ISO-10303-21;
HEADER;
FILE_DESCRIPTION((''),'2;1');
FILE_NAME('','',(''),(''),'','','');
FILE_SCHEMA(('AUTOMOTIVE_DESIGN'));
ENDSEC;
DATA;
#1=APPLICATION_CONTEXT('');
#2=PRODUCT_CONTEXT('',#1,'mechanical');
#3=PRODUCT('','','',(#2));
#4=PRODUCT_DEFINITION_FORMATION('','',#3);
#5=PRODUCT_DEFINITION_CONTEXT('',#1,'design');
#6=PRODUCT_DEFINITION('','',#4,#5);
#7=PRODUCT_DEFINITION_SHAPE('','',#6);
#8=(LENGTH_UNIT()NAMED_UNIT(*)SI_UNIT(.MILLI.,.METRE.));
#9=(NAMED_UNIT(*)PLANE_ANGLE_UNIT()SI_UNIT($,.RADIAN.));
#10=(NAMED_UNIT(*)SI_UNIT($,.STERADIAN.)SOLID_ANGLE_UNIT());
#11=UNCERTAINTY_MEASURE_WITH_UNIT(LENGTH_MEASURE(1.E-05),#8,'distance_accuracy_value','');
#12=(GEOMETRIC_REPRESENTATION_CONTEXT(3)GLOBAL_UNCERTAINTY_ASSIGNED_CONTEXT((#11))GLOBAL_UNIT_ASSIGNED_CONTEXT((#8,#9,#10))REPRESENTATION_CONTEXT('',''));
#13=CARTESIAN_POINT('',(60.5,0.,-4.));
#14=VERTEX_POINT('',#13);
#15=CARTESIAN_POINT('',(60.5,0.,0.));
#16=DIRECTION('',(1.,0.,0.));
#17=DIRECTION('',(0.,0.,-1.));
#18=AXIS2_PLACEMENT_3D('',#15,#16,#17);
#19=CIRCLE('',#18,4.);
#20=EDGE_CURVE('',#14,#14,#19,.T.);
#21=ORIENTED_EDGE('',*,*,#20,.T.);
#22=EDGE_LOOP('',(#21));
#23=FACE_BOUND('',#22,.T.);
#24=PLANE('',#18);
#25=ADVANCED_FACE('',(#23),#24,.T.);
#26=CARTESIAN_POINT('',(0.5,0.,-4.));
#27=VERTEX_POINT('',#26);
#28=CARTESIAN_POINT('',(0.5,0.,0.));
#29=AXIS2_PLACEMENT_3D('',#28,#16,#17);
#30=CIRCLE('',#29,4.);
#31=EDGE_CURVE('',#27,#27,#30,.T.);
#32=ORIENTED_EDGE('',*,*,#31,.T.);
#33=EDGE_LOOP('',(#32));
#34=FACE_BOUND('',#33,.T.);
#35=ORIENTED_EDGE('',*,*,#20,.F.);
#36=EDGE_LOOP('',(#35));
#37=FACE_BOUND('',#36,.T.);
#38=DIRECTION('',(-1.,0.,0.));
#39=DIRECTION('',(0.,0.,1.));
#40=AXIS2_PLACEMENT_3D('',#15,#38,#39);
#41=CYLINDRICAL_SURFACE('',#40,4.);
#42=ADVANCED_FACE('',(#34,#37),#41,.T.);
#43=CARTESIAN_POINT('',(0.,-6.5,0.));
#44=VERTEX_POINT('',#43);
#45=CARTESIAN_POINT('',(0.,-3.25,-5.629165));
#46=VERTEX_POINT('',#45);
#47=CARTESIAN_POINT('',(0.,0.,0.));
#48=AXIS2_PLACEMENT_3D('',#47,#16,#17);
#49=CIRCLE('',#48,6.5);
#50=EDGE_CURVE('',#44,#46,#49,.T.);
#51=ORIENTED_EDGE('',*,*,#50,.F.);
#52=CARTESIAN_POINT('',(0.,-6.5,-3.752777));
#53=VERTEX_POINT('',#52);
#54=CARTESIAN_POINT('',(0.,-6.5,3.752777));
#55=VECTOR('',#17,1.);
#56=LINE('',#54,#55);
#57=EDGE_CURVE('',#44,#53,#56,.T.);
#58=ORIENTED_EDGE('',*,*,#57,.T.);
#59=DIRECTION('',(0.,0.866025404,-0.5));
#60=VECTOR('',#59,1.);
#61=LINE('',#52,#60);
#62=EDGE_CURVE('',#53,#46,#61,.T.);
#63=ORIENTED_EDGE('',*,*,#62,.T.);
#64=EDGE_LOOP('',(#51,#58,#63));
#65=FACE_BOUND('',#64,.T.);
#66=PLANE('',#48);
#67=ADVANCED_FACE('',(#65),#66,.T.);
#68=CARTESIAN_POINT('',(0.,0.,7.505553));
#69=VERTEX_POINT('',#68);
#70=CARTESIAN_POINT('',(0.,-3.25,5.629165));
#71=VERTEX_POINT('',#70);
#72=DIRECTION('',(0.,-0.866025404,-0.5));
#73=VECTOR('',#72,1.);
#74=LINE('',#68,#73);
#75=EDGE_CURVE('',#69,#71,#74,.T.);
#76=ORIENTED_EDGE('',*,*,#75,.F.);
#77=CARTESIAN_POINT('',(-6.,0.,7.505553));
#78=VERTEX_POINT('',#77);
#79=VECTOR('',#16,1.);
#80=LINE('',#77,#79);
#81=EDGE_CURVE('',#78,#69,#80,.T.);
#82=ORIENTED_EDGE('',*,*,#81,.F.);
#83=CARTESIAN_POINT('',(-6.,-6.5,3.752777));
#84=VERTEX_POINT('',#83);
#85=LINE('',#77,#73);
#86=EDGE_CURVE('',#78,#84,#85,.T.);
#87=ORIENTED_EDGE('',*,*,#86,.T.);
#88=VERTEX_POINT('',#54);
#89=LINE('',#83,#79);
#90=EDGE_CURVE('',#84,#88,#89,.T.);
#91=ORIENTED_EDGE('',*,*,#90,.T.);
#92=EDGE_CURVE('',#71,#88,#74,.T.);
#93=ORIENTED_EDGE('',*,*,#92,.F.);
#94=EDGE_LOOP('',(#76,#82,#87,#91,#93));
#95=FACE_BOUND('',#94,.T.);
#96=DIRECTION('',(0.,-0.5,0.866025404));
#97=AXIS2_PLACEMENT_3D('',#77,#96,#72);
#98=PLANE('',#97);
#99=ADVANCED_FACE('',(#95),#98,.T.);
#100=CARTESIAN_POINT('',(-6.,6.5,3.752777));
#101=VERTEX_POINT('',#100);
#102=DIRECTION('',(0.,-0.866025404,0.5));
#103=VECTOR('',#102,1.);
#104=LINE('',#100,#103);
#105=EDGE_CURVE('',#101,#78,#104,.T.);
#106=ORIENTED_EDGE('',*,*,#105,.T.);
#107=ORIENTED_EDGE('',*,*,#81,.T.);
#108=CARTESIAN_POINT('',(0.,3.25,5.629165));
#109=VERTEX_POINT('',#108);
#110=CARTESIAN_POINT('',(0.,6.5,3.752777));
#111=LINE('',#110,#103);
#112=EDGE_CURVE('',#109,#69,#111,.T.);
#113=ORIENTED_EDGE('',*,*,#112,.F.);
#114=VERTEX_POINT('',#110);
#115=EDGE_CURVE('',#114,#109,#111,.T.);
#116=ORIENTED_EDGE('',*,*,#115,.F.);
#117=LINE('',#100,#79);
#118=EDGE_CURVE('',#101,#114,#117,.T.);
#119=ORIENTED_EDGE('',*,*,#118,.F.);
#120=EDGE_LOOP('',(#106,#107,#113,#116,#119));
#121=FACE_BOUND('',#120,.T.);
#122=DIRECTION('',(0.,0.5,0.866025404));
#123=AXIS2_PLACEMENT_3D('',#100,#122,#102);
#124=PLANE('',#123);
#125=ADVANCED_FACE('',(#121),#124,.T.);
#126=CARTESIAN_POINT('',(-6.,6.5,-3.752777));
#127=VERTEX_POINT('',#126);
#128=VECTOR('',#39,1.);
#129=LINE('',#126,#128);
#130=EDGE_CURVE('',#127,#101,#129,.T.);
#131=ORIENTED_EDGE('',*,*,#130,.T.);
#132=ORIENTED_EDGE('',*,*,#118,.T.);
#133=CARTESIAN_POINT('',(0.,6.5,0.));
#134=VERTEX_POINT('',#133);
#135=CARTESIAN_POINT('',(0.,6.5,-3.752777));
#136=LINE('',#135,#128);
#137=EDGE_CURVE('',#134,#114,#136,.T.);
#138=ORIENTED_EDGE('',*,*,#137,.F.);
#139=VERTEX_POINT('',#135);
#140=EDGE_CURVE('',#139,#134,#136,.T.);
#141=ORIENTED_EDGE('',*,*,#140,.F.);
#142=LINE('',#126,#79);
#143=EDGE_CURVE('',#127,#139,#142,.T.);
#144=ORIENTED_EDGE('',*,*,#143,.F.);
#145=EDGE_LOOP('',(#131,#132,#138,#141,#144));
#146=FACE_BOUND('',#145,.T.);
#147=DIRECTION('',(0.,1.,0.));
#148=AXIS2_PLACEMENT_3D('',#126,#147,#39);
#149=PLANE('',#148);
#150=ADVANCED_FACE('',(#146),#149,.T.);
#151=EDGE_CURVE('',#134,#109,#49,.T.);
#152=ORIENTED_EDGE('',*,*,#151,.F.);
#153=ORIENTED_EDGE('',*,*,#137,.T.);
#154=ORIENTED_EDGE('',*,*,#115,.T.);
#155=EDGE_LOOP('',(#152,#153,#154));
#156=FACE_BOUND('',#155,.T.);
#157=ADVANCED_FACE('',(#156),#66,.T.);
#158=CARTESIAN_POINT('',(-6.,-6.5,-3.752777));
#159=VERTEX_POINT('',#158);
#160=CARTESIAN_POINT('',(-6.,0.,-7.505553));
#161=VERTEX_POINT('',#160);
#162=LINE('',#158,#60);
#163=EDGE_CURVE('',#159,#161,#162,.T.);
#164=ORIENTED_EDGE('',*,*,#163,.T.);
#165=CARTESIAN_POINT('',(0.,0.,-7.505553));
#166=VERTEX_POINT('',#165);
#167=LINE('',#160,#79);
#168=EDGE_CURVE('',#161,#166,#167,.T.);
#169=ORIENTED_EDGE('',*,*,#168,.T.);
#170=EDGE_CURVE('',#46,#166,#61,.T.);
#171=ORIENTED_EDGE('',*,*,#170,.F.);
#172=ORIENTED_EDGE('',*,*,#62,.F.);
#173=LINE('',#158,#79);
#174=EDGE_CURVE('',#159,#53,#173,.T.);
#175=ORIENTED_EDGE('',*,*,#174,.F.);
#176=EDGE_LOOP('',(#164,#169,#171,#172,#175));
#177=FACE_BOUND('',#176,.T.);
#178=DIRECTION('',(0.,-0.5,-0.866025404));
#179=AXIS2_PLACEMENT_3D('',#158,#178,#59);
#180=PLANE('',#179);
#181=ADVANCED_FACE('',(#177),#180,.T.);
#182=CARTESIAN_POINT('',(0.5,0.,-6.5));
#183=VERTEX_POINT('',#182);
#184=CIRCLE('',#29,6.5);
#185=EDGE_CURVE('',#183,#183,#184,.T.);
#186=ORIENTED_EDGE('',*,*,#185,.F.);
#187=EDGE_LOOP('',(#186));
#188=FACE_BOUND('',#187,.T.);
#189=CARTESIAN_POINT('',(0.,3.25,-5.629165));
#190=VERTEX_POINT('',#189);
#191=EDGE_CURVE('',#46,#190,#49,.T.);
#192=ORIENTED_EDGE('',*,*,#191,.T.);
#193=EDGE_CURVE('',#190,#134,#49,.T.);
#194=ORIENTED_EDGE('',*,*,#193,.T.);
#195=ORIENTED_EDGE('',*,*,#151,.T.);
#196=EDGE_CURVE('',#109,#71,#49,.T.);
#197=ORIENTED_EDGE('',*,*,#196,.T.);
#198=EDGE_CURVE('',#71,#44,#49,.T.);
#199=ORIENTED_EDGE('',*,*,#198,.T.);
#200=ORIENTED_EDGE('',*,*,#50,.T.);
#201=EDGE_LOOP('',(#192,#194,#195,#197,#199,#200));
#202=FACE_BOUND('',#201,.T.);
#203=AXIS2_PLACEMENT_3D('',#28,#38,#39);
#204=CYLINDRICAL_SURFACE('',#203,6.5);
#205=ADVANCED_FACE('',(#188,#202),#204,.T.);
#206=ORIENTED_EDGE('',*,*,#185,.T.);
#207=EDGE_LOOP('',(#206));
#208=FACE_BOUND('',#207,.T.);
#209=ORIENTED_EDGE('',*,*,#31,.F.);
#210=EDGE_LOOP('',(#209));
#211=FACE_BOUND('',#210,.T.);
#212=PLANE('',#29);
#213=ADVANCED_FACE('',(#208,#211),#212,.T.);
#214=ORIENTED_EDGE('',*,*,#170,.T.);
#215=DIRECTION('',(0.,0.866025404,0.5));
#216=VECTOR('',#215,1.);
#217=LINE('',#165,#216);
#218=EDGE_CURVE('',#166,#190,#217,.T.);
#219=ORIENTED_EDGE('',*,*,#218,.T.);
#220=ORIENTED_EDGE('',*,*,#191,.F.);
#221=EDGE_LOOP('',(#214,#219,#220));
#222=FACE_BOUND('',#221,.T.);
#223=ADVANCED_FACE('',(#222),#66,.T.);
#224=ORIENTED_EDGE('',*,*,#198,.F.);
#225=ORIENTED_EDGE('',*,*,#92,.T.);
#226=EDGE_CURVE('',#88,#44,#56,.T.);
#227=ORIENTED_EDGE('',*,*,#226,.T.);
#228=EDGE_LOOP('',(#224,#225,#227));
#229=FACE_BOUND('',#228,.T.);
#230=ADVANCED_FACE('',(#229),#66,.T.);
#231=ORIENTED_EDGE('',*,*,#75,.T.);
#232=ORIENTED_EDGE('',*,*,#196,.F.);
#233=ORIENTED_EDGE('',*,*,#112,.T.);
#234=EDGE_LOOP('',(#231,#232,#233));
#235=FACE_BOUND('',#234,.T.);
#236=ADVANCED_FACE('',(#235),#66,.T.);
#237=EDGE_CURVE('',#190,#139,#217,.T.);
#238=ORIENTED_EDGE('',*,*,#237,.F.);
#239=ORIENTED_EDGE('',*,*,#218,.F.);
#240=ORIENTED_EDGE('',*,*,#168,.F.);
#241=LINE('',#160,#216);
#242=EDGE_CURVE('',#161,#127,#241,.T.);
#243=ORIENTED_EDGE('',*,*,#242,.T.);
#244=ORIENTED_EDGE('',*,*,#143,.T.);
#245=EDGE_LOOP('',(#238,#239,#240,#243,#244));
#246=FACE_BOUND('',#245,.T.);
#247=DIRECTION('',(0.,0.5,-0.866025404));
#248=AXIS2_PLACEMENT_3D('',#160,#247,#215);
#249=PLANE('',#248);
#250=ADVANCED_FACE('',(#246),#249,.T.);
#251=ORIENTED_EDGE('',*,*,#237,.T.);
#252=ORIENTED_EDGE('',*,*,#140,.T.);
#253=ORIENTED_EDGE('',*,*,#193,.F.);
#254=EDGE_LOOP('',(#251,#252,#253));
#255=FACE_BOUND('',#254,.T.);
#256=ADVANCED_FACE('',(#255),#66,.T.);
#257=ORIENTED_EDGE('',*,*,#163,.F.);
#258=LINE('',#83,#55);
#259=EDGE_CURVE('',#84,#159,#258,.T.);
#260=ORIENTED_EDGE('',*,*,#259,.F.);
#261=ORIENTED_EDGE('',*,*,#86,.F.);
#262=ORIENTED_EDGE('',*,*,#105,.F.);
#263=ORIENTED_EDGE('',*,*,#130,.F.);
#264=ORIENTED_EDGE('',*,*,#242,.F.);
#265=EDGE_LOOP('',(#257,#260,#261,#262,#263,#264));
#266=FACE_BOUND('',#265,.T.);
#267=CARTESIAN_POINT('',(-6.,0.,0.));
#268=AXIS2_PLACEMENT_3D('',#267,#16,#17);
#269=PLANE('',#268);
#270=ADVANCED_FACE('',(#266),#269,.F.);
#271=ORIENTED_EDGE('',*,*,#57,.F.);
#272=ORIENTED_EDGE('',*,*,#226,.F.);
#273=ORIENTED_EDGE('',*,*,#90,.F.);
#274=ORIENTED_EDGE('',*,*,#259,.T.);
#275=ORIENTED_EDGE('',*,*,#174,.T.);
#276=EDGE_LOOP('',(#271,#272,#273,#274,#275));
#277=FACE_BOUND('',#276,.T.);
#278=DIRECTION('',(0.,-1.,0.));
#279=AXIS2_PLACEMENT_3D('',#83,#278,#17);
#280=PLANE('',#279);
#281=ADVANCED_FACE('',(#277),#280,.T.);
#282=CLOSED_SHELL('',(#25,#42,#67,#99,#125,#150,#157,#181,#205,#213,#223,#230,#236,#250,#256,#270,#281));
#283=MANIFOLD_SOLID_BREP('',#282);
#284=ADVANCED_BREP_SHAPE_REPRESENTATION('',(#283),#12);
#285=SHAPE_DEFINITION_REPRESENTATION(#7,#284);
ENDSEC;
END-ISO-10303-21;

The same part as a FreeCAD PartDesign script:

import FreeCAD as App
import Part
import Sketcher
Q = App.Units.Quantity


def add_polygon(sketch, points):
    """Adds a closed chain of lines whose ends are joined by coincident constraints."""
    first, n = sketch.GeometryCount, len(points)
    for a, b in zip(points, points[1:] + points[:1]):
        sketch.addGeometry(Part.LineSegment(App.Vector(*a, 0), App.Vector(*b, 0)), False)
    for i in range(n):
        sketch.addConstraint(Sketcher.Constraint("Coincident", first + i, 2, first + (i + 1) % n, 1))

doc = App.newDocument("Part")
body = doc.addObject("PartDesign::Body", "Body")

# Sketch on YZ plane
sketch1 = body.newObject("Sketcher::SketchObject", "Sketch")
sketch1.AttachmentSupport = (doc.getObject("YZ_Plane"), [""])
sketch1.MapMode = "FlatFace"
add_polygon(sketch1, [(0, 7.505553), (-6.5, 3.752777), (-6.5, -3.752777), (0, -7.505553), (6.5, -3.752777), (6.5, 3.752777)])  # lines 0-5
sketch1.addConstraint([
    Sketcher.Constraint("Vertical", 1),
    Sketcher.Constraint("Vertical", 4),
    Sketcher.Constraint("Symmetric", 0, 2, 3, 2, -1, 1),
    Sketcher.Constraint("Symmetric", 2, 2, 5, 2, -1, 1),
    Sketcher.Constraint("PointOnObject", 2, 2, -2),
    Sketcher.Constraint("Parallel", 2, 5),
    Sketcher.Constraint("Horizontal", 1, 2, 3, 2),
    Sketcher.Constraint("Angle", 0, Q("-150 deg")),
    Sketcher.Constraint("DistanceX", 1, 2, 3, 2, 13.0),
    Sketcher.Constraint("DistanceY", 1, 2, 1, 1, 7.505554),
])
pad1 = body.newObject("PartDesign::Pad", "Pad")
pad1.Profile = sketch1
pad1.Length = 6
pad1.Reversed = True

# Sketch on YZ plane
sketch2 = body.newObject("Sketcher::SketchObject", "Sketch001")
sketch2.AttachmentSupport = (doc.getObject("YZ_Plane"), [""])
sketch2.MapMode = "FlatFace"
sketch2.addGeometry(Part.Circle(App.Vector(0, 0, 0), App.Vector(0, 0, 1), 6.5), False)
sketch2.addConstraint([
    Sketcher.Constraint("Coincident", 0, 3, -1, 1),
    Sketcher.Constraint("Diameter", 0, 13.0),
])
pad2 = body.newObject("PartDesign::Pad", "Pad001")
pad2.Profile = sketch2
pad2.Length = 0.5

# Sketch on YZ plane
sketch3 = body.newObject("Sketcher::SketchObject", "Sketch002")
sketch3.AttachmentSupport = (doc.getObject("YZ_Plane"), [""])
sketch3.MapMode = "FlatFace"
sketch3.AttachmentOffset = App.Placement(App.Vector(0, 0, 0.5), App.Rotation())
sketch3.addGeometry(Part.Circle(App.Vector(0, 0, 0), App.Vector(0, 0, 1), 4), False)
sketch3.addConstraint([
    Sketcher.Constraint("Coincident", 0, 3, -1, 1),
    Sketcher.Constraint("Diameter", 0, 8.0),
])
pad3 = body.newObject("PartDesign::Pad", "Pad002")
pad3.Profile = sketch3
pad3.Length = 60

doc.recompute()
